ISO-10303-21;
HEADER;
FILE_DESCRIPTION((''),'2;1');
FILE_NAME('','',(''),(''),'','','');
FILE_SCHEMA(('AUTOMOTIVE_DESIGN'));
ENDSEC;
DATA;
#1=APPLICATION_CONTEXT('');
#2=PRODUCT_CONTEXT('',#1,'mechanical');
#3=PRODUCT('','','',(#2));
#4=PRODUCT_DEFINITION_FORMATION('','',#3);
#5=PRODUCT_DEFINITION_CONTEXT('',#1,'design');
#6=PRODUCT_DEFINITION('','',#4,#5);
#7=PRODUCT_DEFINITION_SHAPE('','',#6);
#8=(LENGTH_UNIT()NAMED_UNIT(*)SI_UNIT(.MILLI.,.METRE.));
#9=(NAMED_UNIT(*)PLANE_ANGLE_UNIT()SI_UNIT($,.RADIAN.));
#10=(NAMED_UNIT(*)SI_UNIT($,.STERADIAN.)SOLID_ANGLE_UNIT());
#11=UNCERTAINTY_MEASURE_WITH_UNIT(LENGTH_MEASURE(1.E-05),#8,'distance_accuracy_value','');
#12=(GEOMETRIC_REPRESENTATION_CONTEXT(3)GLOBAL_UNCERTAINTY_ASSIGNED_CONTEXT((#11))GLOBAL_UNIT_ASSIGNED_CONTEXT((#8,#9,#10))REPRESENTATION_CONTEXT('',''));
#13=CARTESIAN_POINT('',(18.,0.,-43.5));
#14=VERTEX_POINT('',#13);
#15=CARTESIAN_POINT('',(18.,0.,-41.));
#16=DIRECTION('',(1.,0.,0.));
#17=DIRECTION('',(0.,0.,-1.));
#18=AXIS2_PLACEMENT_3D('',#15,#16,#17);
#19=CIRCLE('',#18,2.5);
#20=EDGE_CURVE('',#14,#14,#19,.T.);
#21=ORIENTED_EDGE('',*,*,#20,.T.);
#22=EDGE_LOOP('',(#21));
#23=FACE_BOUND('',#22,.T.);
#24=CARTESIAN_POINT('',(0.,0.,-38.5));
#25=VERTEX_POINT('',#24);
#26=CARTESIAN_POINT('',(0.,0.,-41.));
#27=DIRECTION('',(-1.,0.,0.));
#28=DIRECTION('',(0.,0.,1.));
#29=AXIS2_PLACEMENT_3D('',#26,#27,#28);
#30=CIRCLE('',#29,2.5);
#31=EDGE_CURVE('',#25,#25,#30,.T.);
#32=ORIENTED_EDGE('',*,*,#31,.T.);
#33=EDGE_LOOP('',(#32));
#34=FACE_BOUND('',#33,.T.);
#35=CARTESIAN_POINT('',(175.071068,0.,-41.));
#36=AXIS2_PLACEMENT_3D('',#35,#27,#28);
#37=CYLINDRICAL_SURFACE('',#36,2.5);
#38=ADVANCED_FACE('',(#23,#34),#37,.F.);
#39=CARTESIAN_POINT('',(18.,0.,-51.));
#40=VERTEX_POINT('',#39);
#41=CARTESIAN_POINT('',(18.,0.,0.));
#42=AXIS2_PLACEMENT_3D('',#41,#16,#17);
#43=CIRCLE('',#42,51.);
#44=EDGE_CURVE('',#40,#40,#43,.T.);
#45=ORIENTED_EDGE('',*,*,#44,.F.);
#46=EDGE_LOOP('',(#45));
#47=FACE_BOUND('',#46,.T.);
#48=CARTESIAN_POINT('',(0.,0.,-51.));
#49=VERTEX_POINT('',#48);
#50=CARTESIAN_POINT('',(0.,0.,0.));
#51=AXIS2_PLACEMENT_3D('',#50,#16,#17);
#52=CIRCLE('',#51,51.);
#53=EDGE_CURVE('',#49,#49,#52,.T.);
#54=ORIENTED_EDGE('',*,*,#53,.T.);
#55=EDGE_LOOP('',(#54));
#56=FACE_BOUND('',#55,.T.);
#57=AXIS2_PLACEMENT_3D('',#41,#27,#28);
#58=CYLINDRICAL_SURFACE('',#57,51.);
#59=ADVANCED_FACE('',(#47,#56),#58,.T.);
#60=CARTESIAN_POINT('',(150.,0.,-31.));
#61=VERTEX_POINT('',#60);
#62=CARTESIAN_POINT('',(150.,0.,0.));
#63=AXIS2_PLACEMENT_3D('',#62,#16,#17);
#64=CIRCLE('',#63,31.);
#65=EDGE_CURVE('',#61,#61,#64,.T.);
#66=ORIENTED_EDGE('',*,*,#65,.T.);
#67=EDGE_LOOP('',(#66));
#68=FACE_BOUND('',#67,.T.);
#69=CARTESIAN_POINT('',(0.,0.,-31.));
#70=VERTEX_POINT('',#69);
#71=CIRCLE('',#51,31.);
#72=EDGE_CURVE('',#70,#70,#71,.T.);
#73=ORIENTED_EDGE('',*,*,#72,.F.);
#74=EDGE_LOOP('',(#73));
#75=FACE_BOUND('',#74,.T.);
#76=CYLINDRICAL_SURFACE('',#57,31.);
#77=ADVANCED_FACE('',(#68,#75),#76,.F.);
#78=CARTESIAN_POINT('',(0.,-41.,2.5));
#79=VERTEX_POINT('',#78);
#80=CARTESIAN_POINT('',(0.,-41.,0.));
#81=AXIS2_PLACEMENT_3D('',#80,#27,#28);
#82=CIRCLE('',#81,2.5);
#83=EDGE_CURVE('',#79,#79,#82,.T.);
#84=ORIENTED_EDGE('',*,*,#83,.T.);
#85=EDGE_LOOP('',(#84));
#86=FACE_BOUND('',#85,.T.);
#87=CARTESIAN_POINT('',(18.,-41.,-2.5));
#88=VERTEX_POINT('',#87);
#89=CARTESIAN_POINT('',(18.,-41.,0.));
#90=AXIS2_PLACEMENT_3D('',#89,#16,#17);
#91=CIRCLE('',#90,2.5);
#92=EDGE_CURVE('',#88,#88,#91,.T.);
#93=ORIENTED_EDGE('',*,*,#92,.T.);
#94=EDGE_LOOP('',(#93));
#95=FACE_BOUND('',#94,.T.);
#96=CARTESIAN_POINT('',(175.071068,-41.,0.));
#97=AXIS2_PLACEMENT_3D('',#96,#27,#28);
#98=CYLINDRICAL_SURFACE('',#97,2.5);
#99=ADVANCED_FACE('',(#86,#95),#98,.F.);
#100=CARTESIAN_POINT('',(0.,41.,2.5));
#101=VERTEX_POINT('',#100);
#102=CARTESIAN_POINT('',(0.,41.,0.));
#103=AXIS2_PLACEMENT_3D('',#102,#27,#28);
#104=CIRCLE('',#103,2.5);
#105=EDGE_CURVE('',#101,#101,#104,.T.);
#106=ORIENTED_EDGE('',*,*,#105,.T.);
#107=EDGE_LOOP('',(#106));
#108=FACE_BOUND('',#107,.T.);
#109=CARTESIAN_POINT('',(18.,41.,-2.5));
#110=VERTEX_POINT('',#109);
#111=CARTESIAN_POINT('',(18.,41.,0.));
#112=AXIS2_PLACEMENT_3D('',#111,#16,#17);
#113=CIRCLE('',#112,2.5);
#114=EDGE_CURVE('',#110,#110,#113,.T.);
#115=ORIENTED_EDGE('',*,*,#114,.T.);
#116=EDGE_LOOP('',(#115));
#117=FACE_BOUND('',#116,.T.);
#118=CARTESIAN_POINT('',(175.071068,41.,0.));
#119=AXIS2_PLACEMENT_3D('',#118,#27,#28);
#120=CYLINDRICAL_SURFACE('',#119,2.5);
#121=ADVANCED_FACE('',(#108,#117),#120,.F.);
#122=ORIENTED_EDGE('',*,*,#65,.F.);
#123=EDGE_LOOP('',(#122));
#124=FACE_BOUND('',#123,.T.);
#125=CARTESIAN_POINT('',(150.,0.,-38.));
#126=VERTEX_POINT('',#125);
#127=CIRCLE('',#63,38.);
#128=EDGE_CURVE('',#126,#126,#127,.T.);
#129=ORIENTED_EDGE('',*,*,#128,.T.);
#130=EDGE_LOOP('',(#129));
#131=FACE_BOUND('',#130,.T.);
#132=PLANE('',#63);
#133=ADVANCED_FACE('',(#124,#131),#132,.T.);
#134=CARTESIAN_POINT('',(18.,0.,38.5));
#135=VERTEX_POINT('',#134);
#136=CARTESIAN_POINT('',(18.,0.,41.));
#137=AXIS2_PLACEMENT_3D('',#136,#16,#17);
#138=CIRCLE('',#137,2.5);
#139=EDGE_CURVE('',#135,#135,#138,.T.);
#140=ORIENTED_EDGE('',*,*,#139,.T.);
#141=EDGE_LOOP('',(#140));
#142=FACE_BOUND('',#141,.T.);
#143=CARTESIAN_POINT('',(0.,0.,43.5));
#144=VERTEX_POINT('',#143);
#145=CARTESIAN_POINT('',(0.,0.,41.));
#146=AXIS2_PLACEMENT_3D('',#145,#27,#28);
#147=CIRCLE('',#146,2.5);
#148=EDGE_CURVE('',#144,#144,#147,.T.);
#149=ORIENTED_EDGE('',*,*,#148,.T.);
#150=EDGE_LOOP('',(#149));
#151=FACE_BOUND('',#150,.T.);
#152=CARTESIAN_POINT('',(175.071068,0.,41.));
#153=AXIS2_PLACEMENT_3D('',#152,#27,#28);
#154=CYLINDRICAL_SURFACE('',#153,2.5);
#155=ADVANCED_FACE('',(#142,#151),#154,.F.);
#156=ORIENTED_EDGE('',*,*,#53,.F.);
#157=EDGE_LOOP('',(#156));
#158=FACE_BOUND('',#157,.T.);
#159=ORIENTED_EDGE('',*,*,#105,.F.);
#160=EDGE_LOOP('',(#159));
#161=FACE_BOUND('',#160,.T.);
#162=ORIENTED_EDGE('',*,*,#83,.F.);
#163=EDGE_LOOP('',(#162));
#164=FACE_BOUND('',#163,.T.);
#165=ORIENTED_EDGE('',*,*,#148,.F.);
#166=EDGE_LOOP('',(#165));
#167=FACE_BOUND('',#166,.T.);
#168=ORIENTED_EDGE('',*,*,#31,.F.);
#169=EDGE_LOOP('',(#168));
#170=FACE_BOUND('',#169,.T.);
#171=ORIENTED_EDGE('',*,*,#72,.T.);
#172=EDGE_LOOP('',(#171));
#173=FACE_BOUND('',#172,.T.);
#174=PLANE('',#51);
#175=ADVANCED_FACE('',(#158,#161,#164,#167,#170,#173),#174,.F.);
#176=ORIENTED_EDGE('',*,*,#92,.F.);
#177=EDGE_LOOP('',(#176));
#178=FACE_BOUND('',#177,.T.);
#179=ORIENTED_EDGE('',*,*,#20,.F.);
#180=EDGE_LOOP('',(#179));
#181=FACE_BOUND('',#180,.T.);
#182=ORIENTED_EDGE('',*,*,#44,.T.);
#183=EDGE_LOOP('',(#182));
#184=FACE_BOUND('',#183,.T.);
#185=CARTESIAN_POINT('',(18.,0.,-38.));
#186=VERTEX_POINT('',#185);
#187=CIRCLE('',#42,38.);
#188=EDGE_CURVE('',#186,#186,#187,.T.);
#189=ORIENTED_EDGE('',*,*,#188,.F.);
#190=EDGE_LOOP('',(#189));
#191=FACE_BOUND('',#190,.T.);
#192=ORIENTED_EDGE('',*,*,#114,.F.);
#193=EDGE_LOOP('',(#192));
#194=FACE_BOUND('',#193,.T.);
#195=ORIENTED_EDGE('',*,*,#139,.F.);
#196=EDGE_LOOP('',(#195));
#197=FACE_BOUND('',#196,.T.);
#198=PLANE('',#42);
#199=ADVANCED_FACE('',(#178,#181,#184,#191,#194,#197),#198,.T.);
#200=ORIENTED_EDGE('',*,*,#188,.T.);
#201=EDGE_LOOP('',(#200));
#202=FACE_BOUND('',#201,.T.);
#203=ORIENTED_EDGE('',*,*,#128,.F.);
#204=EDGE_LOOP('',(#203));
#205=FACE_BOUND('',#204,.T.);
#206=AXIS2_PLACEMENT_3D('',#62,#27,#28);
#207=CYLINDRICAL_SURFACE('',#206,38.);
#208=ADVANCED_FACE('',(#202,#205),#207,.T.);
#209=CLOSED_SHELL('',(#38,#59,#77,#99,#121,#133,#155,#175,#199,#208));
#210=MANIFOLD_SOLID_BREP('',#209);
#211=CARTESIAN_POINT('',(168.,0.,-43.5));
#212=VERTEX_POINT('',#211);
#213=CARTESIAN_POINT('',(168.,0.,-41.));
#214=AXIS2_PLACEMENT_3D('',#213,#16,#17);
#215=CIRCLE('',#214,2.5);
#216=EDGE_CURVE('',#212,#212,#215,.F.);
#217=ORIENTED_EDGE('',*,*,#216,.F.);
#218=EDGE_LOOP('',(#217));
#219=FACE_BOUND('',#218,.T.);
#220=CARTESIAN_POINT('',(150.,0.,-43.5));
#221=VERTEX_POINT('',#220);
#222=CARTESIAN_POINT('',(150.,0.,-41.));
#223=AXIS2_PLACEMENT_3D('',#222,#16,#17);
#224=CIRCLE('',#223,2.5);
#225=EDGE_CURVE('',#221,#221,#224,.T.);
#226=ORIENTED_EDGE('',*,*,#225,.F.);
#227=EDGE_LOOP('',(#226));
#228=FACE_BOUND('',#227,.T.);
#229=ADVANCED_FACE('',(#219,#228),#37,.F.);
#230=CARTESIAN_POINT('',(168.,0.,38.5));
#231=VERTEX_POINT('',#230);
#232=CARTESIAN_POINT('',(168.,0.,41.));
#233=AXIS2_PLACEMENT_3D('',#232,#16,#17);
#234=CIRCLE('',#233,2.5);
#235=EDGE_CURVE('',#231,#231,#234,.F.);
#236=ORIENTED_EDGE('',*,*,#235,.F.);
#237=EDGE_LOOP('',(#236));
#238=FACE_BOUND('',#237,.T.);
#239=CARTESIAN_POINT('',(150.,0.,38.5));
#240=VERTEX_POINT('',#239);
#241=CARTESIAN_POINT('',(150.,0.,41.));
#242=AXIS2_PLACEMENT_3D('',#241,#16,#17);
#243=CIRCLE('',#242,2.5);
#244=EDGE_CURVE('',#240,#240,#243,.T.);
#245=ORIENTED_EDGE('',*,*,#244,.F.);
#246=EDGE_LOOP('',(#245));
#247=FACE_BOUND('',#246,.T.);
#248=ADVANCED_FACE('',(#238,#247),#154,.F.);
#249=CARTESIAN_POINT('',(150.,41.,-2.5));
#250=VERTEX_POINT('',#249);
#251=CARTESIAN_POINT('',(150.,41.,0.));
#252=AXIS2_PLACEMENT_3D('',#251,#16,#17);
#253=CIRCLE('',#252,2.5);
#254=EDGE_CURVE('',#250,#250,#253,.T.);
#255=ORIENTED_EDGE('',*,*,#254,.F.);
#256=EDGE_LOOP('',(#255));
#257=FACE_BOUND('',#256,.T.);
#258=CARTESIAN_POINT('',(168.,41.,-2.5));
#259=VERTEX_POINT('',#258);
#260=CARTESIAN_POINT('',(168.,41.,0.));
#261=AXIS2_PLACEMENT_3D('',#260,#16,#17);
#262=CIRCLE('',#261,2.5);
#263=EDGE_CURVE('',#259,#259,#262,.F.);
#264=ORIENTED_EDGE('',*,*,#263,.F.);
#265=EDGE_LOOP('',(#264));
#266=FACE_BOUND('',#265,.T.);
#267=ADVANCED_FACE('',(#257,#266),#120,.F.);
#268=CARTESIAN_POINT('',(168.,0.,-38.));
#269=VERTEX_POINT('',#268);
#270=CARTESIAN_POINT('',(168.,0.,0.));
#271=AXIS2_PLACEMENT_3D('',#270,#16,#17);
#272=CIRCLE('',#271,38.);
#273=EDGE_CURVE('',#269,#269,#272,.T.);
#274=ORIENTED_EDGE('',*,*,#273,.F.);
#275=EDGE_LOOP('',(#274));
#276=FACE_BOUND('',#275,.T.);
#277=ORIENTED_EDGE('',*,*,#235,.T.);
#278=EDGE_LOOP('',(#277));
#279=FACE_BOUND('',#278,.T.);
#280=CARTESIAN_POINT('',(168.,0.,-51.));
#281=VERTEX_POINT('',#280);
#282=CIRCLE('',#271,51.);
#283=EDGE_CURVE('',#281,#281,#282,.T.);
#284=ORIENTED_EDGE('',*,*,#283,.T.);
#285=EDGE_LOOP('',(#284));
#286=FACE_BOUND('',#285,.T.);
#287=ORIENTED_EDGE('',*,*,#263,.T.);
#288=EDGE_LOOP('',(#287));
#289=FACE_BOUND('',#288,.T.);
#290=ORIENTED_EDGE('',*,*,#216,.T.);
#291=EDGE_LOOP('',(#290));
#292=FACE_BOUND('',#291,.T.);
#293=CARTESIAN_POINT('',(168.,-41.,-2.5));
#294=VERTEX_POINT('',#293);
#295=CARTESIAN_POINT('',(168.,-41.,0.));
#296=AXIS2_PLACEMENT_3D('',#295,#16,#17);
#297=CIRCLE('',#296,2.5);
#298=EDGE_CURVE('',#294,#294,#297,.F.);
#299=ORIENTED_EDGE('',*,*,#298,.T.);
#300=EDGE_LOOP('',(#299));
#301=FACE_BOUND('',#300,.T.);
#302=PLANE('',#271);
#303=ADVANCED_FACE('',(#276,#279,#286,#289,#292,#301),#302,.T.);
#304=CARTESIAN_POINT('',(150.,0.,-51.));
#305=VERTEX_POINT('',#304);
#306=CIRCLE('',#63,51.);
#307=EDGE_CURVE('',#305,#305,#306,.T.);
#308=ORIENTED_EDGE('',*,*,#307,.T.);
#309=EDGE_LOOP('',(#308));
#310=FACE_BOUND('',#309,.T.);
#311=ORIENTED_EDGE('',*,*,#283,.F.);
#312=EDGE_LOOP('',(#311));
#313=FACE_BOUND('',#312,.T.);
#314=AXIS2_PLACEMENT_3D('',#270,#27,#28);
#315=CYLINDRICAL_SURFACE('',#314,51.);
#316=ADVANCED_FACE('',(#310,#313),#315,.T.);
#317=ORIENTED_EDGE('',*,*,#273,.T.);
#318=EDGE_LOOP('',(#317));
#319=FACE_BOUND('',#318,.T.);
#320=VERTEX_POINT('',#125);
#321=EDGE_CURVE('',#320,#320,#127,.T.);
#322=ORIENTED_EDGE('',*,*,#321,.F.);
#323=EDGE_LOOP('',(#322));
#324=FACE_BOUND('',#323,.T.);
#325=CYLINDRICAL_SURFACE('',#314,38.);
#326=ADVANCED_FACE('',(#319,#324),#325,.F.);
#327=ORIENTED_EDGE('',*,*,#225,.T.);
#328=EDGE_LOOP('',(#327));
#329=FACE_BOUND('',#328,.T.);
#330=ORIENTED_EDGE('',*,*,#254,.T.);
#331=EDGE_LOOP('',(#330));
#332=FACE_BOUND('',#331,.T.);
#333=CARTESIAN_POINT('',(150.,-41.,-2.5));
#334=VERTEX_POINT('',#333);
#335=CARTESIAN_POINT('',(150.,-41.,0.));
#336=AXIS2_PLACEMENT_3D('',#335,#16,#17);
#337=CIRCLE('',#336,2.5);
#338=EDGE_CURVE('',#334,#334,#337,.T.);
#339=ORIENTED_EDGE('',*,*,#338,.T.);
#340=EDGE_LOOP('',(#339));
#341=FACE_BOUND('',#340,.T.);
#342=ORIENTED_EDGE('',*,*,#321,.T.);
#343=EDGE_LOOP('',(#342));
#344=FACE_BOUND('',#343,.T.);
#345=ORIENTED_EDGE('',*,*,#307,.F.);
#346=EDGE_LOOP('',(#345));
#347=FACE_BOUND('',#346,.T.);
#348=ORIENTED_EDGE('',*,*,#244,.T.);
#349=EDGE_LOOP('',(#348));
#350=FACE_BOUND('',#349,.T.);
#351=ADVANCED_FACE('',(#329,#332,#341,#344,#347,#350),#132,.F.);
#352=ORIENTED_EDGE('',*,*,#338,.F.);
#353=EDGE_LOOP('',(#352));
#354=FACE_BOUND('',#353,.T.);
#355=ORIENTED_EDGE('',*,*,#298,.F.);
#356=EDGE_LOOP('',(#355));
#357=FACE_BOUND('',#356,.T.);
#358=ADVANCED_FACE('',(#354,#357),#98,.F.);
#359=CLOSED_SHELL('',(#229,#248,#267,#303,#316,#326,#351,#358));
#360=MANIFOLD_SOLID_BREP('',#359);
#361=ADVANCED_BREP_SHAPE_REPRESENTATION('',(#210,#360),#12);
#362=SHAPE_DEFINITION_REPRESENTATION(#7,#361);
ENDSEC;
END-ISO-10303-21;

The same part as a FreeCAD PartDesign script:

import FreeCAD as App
import Part
import Sketcher

doc = App.newDocument("Part")
params = doc.addObject("Spreadsheet::Sheet", "Params")
for row, (alias, value) in enumerate([
    ("sketch1_diameter", "102 mm"),
    ("sketch1_diameter2", "62 mm"),
    ("pad1_length", "18 mm"),
    ("sketch2_diameter", "76 mm"),
    ("sketch2_diameter2", "62 mm"),
    ("pad2_length", "132 mm"),
    ("sketch3_diameter", "102 mm"),
    ("sketch3_diameter2", "76 mm"),
    ("pad3_length", "18 mm"),
    ("sketch4_diameter", "5 mm"),
    ("pad4_length", "168 mm"),
], start=1):
    params.set(f"A{row}", alias)
    params.set(f"B{row}", "=" + value)
    params.setAlias(f"B{row}", alias)

body = doc.addObject("PartDesign::Body", "Body")

# Sketch on YZ plane
sketch1 = body.newObject("Sketcher::SketchObject", "Sketch")
sketch1.AttachmentSupport = (doc.getObject("YZ_Plane"), [""])
sketch1.MapMode = "FlatFace"
sketch1.addGeometry([
    Part.Circle(App.Vector(0, 0, 0), App.Vector(0, 0, 1), 51),
    Part.Circle(App.Vector(0, 0, 0), App.Vector(0, 0, 1), 31),
], False)
sketch1.addConstraint([
    Sketcher.Constraint("Coincident", 0, 3, -1, 1),
    Sketcher.Constraint("Coincident", 1, 3, -1, 1),
    Sketcher.Constraint("Diameter", 0, 102.0),
    Sketcher.Constraint("Diameter", 1, 62.0),
])
sketch1.setExpression("Constraints[2]", "Params.sketch1_diameter")
sketch1.setExpression("Constraints[3]", "Params.sketch1_diameter2")
pad1 = body.newObject("PartDesign::Pad", "Pad")
pad1.Profile = sketch1
pad1.setExpression("Length", "Params.pad1_length")

# Sketch on YZ plane
sketch2 = body.newObject("Sketcher::SketchObject", "Sketch001")
sketch2.AttachmentSupport = (doc.getObject("YZ_Plane"), [""])
sketch2.MapMode = "FlatFace"
sketch2.AttachmentOffset = App.Placement(App.Vector(0, 0, 18), App.Rotation())
sketch2.addGeometry([
    Part.Circle(App.Vector(0, 0, 0), App.Vector(0, 0, 1), 38),
    Part.Circle(App.Vector(0, 0, 0), App.Vector(0, 0, 1), 31),
], False)
sketch2.addConstraint([
    Sketcher.Constraint("Coincident", 0, 3, -1, 1),
    Sketcher.Constraint("Coincident", 1, 3, -1, 1),
    Sketcher.Constraint("Diameter", 0, 76.0),
    Sketcher.Constraint("Diameter", 1, 62.0),
])
sketch2.setExpression("Constraints[2]", "Params.sketch2_diameter")
sketch2.setExpression("Constraints[3]", "Params.sketch2_diameter2")
pad2 = body.newObject("PartDesign::Pad", "Pad001")
pad2.Profile = sketch2
pad2.setExpression("Length", "Params.pad2_length")
body2 = doc.addObject("PartDesign::Body", "Body001")

# Sketch on YZ plane
sketch3 = body2.newObject("Sketcher::SketchObject", "Sketch002")
sketch3.AttachmentSupport = (doc.getObject("YZ_Plane001"), [""])
sketch3.MapMode = "FlatFace"
sketch3.AttachmentOffset = App.Placement(App.Vector(0, 0, 150), App.Rotation())
sketch3.addGeometry([
    Part.Circle(App.Vector(0, 0, 0), App.Vector(0, 0, 1), 51),
    Part.Circle(App.Vector(0, 0, 0), App.Vector(0, 0, 1), 38),
], False)
sketch3.addConstraint([
    Sketcher.Constraint("Coincident", 0, 3, -1, 1),
    Sketcher.Constraint("Coincident", 1, 3, -1, 1),
    Sketcher.Constraint("Diameter", 0, 102.0),
    Sketcher.Constraint("Diameter", 1, 76.0),
])
sketch3.setExpression("Constraints[2]", "Params.sketch3_diameter")
sketch3.setExpression("Constraints[3]", "Params.sketch3_diameter2")
pad3 = body2.newObject("PartDesign::Pad", "Pad002")
pad3.Profile = sketch3
pad3.setExpression("Length", "Params.pad3_length")
body3 = doc.addObject("PartDesign::Body", "Body002")
body3.AllowCompound = True

# Sketch on YZ plane
sketch4 = body3.newObject("Sketcher::SketchObject", "Sketch003")
sketch4.AttachmentSupport = (doc.getObject("YZ_Plane002"), [""])
sketch4.MapMode = "FlatFace"
sketch4.AttachmentOffset = App.Placement(App.Vector(0, 0, 168), App.Rotation())
sketch4.addGeometry([
    Part.Circle(App.Vector(41, 0, 0), App.Vector(0, 0, 1), 2.5),
    Part.Circle(App.Vector(0, 41, 0), App.Vector(0, 0, 1), 2.5),
    Part.Circle(App.Vector(-41, 0, 0), App.Vector(0, 0, 1), 2.5),
    Part.Circle(App.Vector(0, -41, 0), App.Vector(0, 0, 1), 2.5),
], False)
sketch4.addConstraint([
    Sketcher.Constraint("Equal", 0, 1),
    Sketcher.Constraint("Equal", 1, 2),
    Sketcher.Constraint("Equal", 2, 3),
    Sketcher.Constraint("Symmetric", 0, 3, 2, 3, -1, 1),
    Sketcher.Constraint("Symmetric", 1, 3, 3, 3, -1, 1),
    Sketcher.Constraint("PointOnObject", 0, 3, -1),
    Sketcher.Constraint("PointOnObject", 1, 3, -2),
    Sketcher.Constraint("Diameter", 0, 5.0),
    Sketcher.Constraint("DistanceX", -1, 1, 0, 3, 41.0),
    Sketcher.Constraint("DistanceY", -1, 1, 1, 3, 41.0),
])
sketch4.setExpression("Constraints[7]", "Params.sketch4_diameter")
pad4 = body3.newObject("PartDesign::Pad", "Pad003")
pad4.Profile = sketch4
pad4.setExpression("Length", "Params.pad4_length")
pad4.Reversed = True
doc.recompute()

body4 = doc.addObject("PartDesign::Body", "Body003")
body4.BaseFeature = body3
boolean = body.newObject("PartDesign::Boolean", "Boolean")
boolean.Type = "Cut"
boolean.addObjects([body4])
doc.recompute()

boolean2 = body2.newObject("PartDesign::Boolean", "Boolean001")
boolean2.Type = "Cut"
boolean2.addObjects([body3])

doc.recompute()
